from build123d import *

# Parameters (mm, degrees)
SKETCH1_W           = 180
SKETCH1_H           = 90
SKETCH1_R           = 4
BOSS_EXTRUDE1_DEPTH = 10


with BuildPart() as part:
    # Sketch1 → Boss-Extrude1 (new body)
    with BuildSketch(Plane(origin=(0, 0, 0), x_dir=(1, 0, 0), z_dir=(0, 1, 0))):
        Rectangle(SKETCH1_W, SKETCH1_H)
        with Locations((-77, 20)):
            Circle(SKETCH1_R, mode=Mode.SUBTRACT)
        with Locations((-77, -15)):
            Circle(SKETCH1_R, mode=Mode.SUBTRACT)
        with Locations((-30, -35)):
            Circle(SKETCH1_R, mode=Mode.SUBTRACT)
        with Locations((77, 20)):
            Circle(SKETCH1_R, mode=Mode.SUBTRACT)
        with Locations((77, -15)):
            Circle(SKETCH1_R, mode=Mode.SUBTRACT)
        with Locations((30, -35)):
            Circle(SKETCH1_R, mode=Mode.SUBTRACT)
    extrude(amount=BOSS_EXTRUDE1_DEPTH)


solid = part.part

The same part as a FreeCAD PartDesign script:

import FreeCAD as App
import Part
import Sketcher


def add_polygon(sketch, points):
    """Adds a closed chain of lines whose ends are joined by coincident constraints."""
    first, n = sketch.GeometryCount, len(points)
    for a, b in zip(points, points[1:] + points[:1]):
        sketch.addGeometry(Part.LineSegment(App.Vector(*a, 0), App.Vector(*b, 0)), False)
    for i in range(n):
        sketch.addConstraint(Sketcher.Constraint("Coincident", first + i, 2, first + (i + 1) % n, 1))

doc = App.newDocument("Part")
params = doc.addObject("Spreadsheet::Sheet", "Params")
for row, (alias, value) in enumerate([
    ("sketch1_diameter", "8 mm"),
    ("sketch1_width", "180 mm"),
    ("sketch1_height", "90 mm"),
    ("pad1_length", "10 mm"),
], start=1):
    params.set(f"A{row}", alias)
    params.set(f"B{row}", "=" + value)
    params.setAlias(f"B{row}", alias)

body = doc.addObject("PartDesign::Body", "Body")

sketch1 = body.newObject("Sketcher::SketchObject", "Sketch")
sketch1.AttachmentSupport = (doc.getObject("XZ_Plane"), [""])
sketch1.MapMode = "FlatFace"
add_polygon(sketch1, [(-90, -45), (-90, 45), (90, 45), (90, -45)])
sketch1.addGeometry(Part.Circle(App.Vector(-30, 35, 0), App.Vector(0, 0, 1), 4), False)
sketch1.addGeometry(Part.Circle(App.Vector(-77, 15, 0), App.Vector(0, 0, 1), 4), False)
sketch1.addGeometry(Part.Circle(App.Vector(30, 35, 0), App.Vector(0, 0, 1), 4), False)
sketch1.addGeometry(Part.Circle(App.Vector(77, 15, 0), App.Vector(0, 0, 1), 4), False)
sketch1.addGeometry(Part.Circle(App.Vector(-77, -20, 0), App.Vector(0, 0, 1), 4), False)
sketch1.addGeometry(Part.Circle(App.Vector(77, -20, 0), App.Vector(0, 0, 1), 4), False)
sketch1.addConstraint(Sketcher.Constraint("Vertical", 0))
sketch1.addConstraint(Sketcher.Constraint("Horizontal", 1))
sketch1.addConstraint(Sketcher.Constraint("Vertical", 2))
sketch1.addConstraint(Sketcher.Constraint("Horizontal", 3))
sketch1.addConstraint(Sketcher.Constraint("Equal", 4, 5))
sketch1.addConstraint(Sketcher.Constraint("Equal", 5, 6))
sketch1.addConstraint(Sketcher.Constraint("Equal", 6, 7))
sketch1.addConstraint(Sketcher.Constraint("Equal", 7, 8))
sketch1.addConstraint(Sketcher.Constraint("Equal", 8, 9))
sketch1.addConstraint(Sketcher.Constraint("Symmetric", 0, 2, 2, 2, -1, 1))
sketch1.addConstraint(Sketcher.Constraint("Symmetric", 4, 3, 6, 3, -2))
sketch1.addConstraint(Sketcher.Constraint("Symmetric", 5, 3, 7, 3, -2))
sketch1.addConstraint(Sketcher.Constraint("Symmetric", 8, 3, 9, 3, -2))
sketch1.addConstraint(Sketcher.Constraint("Vertical", 5, 3, 8, 3))
sketch1.addConstraint(Sketcher.Constraint("Diameter", 4, 8.0))
sketch1.addConstraint(Sketcher.Constraint("DistanceX", 1, 1, 1, 2, 180.0))
sketch1.addConstraint(Sketcher.Constraint("DistanceY", 0, 1, 0, 2, 90.0))
sketch1.addConstraint(Sketcher.Constraint("DistanceX", 4, 3, -1, 1, 30.0))
sketch1.addConstraint(Sketcher.Constraint("DistanceY", -1, 1, 4, 3, 35.0))
sketch1.addConstraint(Sketcher.Constraint("DistanceX", 5, 3, -1, 1, 77.0))
sketch1.addConstraint(Sketcher.Constraint("DistanceY", -1, 1, 5, 3, 15.0))
sketch1.addConstraint(Sketcher.Constraint("DistanceY", 8, 3, -1, 1, 20.0))
sketch1.setExpression("Constraints[18]", "Params.sketch1_diameter")
sketch1.setExpression("Constraints[19]", "Params.sketch1_width")
sketch1.setExpression("Constraints[20]", "Params.sketch1_height")
pad1 = body.newObject("PartDesign::Pad", "Pad")
pad1.Profile = sketch1
pad1.setExpression("Length", "Params.pad1_length")
pad1.Reversed = True

doc.recompute()
